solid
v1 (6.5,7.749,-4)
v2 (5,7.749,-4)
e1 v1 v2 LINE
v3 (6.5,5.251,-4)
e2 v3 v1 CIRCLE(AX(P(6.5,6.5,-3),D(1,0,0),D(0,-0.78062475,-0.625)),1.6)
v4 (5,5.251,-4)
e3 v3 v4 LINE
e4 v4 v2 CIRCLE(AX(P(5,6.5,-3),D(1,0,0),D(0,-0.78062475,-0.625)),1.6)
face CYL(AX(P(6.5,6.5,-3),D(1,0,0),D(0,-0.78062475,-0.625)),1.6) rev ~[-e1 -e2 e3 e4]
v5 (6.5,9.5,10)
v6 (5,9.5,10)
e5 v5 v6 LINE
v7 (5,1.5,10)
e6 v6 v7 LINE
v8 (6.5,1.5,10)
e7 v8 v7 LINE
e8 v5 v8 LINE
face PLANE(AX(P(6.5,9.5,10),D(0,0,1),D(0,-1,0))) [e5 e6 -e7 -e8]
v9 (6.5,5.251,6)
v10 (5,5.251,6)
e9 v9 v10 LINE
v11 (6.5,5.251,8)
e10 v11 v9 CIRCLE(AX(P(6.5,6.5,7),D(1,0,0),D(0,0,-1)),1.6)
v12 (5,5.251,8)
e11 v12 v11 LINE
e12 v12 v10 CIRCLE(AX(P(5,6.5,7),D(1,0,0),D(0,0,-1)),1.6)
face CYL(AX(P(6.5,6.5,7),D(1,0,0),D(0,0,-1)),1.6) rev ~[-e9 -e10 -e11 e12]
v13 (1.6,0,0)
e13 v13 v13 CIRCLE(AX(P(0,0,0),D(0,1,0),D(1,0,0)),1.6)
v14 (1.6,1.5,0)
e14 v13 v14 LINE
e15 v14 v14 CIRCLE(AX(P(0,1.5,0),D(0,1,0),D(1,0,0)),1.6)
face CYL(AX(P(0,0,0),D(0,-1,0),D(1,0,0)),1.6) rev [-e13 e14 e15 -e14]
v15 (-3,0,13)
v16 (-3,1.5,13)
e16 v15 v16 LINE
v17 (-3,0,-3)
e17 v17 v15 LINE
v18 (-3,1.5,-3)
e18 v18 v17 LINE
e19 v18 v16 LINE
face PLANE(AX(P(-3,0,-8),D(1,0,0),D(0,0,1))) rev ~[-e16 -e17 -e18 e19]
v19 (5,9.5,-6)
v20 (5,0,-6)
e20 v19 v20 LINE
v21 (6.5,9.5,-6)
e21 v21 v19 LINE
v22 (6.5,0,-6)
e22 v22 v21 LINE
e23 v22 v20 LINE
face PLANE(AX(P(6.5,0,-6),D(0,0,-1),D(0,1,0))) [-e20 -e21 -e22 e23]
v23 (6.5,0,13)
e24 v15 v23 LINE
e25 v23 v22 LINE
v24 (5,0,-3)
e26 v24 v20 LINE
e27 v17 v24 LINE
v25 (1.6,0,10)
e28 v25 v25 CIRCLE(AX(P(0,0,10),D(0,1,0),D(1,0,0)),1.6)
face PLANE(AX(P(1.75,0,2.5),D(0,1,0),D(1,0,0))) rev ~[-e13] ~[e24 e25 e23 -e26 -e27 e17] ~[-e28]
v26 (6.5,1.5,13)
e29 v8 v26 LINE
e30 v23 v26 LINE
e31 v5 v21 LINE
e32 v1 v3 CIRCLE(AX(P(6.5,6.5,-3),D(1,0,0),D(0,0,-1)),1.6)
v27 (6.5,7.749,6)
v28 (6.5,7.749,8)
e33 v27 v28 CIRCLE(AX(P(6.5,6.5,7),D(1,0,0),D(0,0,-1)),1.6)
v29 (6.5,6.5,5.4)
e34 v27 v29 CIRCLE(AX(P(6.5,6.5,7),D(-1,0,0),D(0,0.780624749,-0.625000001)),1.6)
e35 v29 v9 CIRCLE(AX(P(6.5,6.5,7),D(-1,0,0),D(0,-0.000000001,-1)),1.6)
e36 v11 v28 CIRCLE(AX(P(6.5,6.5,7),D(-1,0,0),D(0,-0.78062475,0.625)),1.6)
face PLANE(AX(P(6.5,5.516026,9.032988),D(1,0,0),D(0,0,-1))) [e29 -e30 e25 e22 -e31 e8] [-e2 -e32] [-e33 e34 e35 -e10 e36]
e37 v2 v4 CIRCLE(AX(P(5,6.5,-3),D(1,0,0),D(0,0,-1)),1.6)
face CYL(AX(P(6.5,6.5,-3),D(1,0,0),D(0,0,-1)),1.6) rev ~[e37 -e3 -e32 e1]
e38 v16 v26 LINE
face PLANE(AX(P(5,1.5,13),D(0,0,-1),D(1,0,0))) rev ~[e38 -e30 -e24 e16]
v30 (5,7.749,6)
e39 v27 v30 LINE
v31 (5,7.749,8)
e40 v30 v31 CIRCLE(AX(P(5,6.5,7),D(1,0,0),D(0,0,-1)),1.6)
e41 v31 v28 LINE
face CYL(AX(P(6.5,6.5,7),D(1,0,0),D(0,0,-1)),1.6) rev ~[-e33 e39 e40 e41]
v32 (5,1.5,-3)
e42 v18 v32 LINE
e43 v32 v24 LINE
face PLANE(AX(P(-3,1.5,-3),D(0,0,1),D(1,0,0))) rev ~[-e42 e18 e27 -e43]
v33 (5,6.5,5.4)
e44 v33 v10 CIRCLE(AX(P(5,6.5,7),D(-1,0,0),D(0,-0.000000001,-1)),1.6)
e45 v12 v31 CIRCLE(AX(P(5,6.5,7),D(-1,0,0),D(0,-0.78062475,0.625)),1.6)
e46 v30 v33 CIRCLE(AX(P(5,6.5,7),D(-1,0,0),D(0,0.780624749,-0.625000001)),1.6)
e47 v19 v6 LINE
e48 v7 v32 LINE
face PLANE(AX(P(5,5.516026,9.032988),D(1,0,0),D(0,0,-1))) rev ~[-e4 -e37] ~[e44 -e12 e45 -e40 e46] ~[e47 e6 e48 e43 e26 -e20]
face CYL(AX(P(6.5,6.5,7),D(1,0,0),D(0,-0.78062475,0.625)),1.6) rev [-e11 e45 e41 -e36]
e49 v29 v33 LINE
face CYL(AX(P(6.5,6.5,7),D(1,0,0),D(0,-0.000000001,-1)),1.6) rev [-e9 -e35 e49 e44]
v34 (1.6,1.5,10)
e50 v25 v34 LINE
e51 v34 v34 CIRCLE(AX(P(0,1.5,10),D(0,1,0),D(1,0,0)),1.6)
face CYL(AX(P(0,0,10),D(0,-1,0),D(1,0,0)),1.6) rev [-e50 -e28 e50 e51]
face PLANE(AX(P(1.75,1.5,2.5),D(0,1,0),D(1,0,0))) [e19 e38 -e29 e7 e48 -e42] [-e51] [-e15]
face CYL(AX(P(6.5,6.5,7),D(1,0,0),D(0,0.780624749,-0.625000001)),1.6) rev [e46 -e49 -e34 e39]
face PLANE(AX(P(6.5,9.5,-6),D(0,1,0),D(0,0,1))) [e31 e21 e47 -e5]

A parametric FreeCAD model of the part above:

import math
import FreeCAD as App
import Part
import Sketcher
Q = App.Units.Quantity

doc = App.newDocument("Part")
body = doc.addObject("PartDesign::Body", "Body")

sketch1 = body.newObject("Sketcher::SketchObject", "Sketch")
sketch1.AttachmentSupport = (doc.getObject("XZ_Plane"), [""])
sketch1.MapMode = "FlatFace"
sketch1.addGeometry([
    Part.LineSegment(App.Vector(-3, -8, 0), App.Vector(-3, 13, 0)),
    Part.LineSegment(App.Vector(-3, 13, 0), App.Vector(6.5, 13, 0)),
    Part.LineSegment(App.Vector(6.5, 13, 0), App.Vector(6.5, -8, 0)),
    Part.LineSegment(App.Vector(6.5, -8, 0), App.Vector(-3, -8, 0)),
    Part.Circle(App.Vector(0, 10, 0), App.Vector(0, 0, 1), 1.6),
    Part.Circle(App.Vector(0, 0, 0), App.Vector(0, 0, 1), 1.6),
], False)
sketch1.addConstraint([
    Sketcher.Constraint("Coincident", 0, 2, 1, 1),
    Sketcher.Constraint("Coincident", 1, 2, 2, 1),
    Sketcher.Constraint("Coincident", 2, 2, 3, 1),
    Sketcher.Constraint("Coincident", 3, 2, 0, 1),
    Sketcher.Constraint("Vertical", 0),
    Sketcher.Constraint("Horizontal", 1),
    Sketcher.Constraint("Vertical", 2),
    Sketcher.Constraint("Horizontal", 3),
    Sketcher.Constraint("Coincident", 5, 3, -1, 1),
    Sketcher.Constraint("Equal", 4, 5),
    Sketcher.Constraint("PointOnObject", 4, 3, -2),
    Sketcher.Constraint("Diameter", 4, Q("3.2 mm")),
    Sketcher.Constraint("DistanceY", 0, 1, 0, 2, Q("21 mm")),
    Sketcher.Constraint("DistanceX", 1, 1, 1, 2, Q("9.5 mm")),
    Sketcher.Constraint("DistanceY", -1, 1, 4, 3, Q("10 mm")),
    Sketcher.Constraint("DistanceX", 0, 2, -1, 1, Q("3 mm")),
    Sketcher.Constraint("DistanceY", -1, 1, 0, 2, Q("13 mm")),
])
pad1 = body.newObject("PartDesign::Pad", "Pad")
pad1.Profile = sketch1
pad1.Length = 1.5
pad1.Reversed = True

sketch2 = body.newObject("Sketcher::SketchObject", "Sketch001")
sketch2.AttachmentSupport = (doc.getObject("XZ_Plane"), [""])
sketch2.MapMode = "FlatFace"
sketch2.AttachmentOffset = App.Placement(App.Vector(0, 0, -1.5), App.Rotation())
sketch2.addGeometry([
    Part.LineSegment(App.Vector(5, -8, 0), App.Vector(5, 13, 0)),
    Part.LineSegment(App.Vector(5, 13, 0), App.Vector(6.5, 13, 0)),
    Part.LineSegment(App.Vector(6.5, 13, 0), App.Vector(6.5, -8, 0)),
    Part.LineSegment(App.Vector(6.5, -8, 0), App.Vector(5, -8, 0)),
], False)
sketch2.addConstraint([
    Sketcher.Constraint("Coincident", 0, 2, 1, 1),
    Sketcher.Constraint("Coincident", 1, 2, 2, 1),
    Sketcher.Constraint("Coincident", 2, 2, 3, 1),
    Sketcher.Constraint("Coincident", 3, 2, 0, 1),
    Sketcher.Constraint("Vertical", 0),
    Sketcher.Constraint("Horizontal", 1),
    Sketcher.Constraint("Vertical", 2),
    Sketcher.Constraint("Horizontal", 3),
    Sketcher.Constraint("DistanceY", 0, 1, 0, 2, Q("21 mm")),
    Sketcher.Constraint("DistanceX", 1, 1, 1, 2, Q("1.5 mm")),
    Sketcher.Constraint("DistanceX", -1, 1, 0, 2, Q("5 mm")),
    Sketcher.Constraint("DistanceY", -1, 1, 0, 2, Q("13 mm")),
])
pad2 = body.newObject("PartDesign::Pad", "Pad001")
pad2.Profile = sketch2
pad2.Length = 8
pad2.Reversed = True

sketch3 = body.newObject("Sketcher::SketchObject", "Sketch002")
sketch3.AttachmentSupport = (doc.getObject("YZ_Plane"), [""])
sketch3.MapMode = "FlatFace"
sketch3.AttachmentOffset = App.Placement(App.Vector(0, 0, 5), App.Rotation())
sketch3.addGeometry([
    Part.Circle(App.Vector(6.5, -5, 0), App.Vector(0, 0, 1), 1.6),
    Part.Circle(App.Vector(6.5, 5, 0), App.Vector(0, 0, 1), 1.6),
], False)
sketch3.addConstraint([
    Sketcher.Constraint("Equal", 0, 1),
    Sketcher.Constraint("Symmetric", 0, 3, 1, 3, -1),
    Sketcher.Constraint("Diameter", 0, Q("3.2 mm")),
    Sketcher.Constraint("DistanceY", 0, 3, -1, 1, Q("5 mm")),
    Sketcher.Constraint("DistanceX", -1, 1, 0, 3, Q("6.5 mm")),
])
pocket1 = body.newObject("PartDesign::Pocket", "Pocket")
pocket1.Profile = sketch3
pocket1.Length = 8
pocket1.Reversed = True

sketch4 = body.newObject("Sketcher::SketchObject", "Sketch003")
sketch4.AttachmentSupport = (doc.getObject("YZ_Plane"), [""])
sketch4.MapMode = "FlatFace"
sketch4.AttachmentOffset = App.Placement(App.Vector(0, 0, 5), App.Rotation())
sketch4.addGeometry([
    Part.LineSegment(App.Vector(10, 8, 0), App.Vector(2, 8, 0)),
    Part.LineSegment(App.Vector(2, 8, 0), App.Vector(2, 13, 0)),
    Part.LineSegment(App.Vector(2, 13, 0), App.Vector(10, 13, 0)),
    Part.LineSegment(App.Vector(10, 13, 0), App.Vector(10, 8, 0)),
], False)
sketch4.addConstraint([
    Sketcher.Constraint("Coincident", 0, 2, 1, 1),
    Sketcher.Constraint("Coincident", 1, 2, 2, 1),
    Sketcher.Constraint("Coincident", 2, 2, 3, 1),
    Sketcher.Constraint("Coincident", 3, 2, 0, 1),
    Sketcher.Constraint("Horizontal", 0),
    Sketcher.Constraint("Vertical", 1),
    Sketcher.Constraint("Horizontal", 2),
    Sketcher.Constraint("Vertical", 3),
    Sketcher.Constraint("DistanceX", 0, 2, 0, 1, Q("8 mm")),
    Sketcher.Constraint("DistanceY", 1, 1, 1, 2, Q("5 mm")),
    Sketcher.Constraint("DistanceY", -1, 1, 0, 2, Q("8 mm")),
    Sketcher.Constraint("DistanceX", -1, 1, 0, 2, Q("1.5 mm")),
])
pocket2 = body.newObject("PartDesign::Pocket", "Pocket001")
pocket2.Profile = sketch4
pocket2.Length = 8
pocket2.Reversed = True

sketch5 = body.newObject("Sketcher::SketchObject", "Sketch004")
sketch5.AttachmentSupport = (doc.getObject("XZ_Plane"), [""])
sketch5.MapMode = "FlatFace"
sketch5.AttachmentOffset = App.Placement(App.Vector(0, 0, -1.5), App.Rotation())
sketch5.addGeometry([
    Part.LineSegment(App.Vector(-3, -8, 0), App.Vector(-3, -3, 0)),
    Part.LineSegment(App.Vector(-3, -3, 0), App.Vector(5, -3, 0)),
    Part.LineSegment(App.Vector(5, -3, 0), App.Vector(5, -8, 0)),
    Part.LineSegment(App.Vector(5, -8, 0), App.Vector(-3, -8, 0)),
], False)
sketch5.addConstraint([
    Sketcher.Constraint("Coincident", 0, 2, 1, 1),
    Sketcher.Constraint("Coincident", 1, 2, 2, 1),
    Sketcher.Constraint("Coincident", 2, 2, 3, 1),
    Sketcher.Constraint("Coincident", 3, 2, 0, 1),
    Sketcher.Constraint("Vertical", 0),
    Sketcher.Constraint("Horizontal", 1),
    Sketcher.Constraint("Vertical", 2),
    Sketcher.Constraint("Horizontal", 3),
    Sketcher.Constraint("DistanceX", 1, 1, 1, 2, Q("8 mm")),
    Sketcher.Constraint("DistanceY", 0, 1, 0, 2, Q("5 mm")),
    Sketcher.Constraint("DistanceX", 0, 2, -1, 1, Q("3 mm")),
    Sketcher.Constraint("DistanceY", 0, 2, -1, 1, Q("3 mm")),
])
pocket3 = body.newObject("PartDesign::Pocket", "Pocket002")
pocket3.Profile = sketch5
pocket3.Length = 8
pocket3.Reversed = True

sketch6 = body.newObject("Sketcher::SketchObject", "Sketch005")
sketch6.AttachmentSupport = (doc.getObject("YZ_Plane"), [""])
sketch6.MapMode = "FlatFace"
sketch6.AttachmentOffset = App.Placement(App.Vector(0, 0, 6.5), App.Rotation())
sketch6.addGeometry([
    Part.Circle(App.Vector(6.5, 7, 0), App.Vector(0, 0, 1), 1.6),
    Part.Circle(App.Vector(6.5, -3, 0), App.Vector(0, 0, 1), 1.6),
    Part.LineSegment(App.Vector(9.5, -6, 0), App.Vector(0, -6, 0)),
    Part.LineSegment(App.Vector(0, -6, 0), App.Vector(0, -8, 0)),
    Part.LineSegment(App.Vector(0, -8, 0), App.Vector(9.5, -8, 0)),
    Part.LineSegment(App.Vector(9.5, -8, 0), App.Vector(9.5, -6, 0)),
], False)
sketch6.addConstraint([
    Sketcher.Constraint("Coincident", 2, 2, 3, 1),
    Sketcher.Constraint("Coincident", 3, 2, 4, 1),
    Sketcher.Constraint("Coincident", 4, 2, 5, 1),
    Sketcher.Constraint("Coincident", 5, 2, 2, 1),
    Sketcher.Constraint("Horizontal", 2),
    Sketcher.Constraint("Vertical", 3),
    Sketcher.Constraint("Horizontal", 4),
    Sketcher.Constraint("Vertical", 5),
    Sketcher.Constraint("Equal", 0, 1),
    Sketcher.Constraint("PointOnObject", 2, 2, -2),
    Sketcher.Constraint("Vertical", 0, 3, 1, 3),
    Sketcher.Constraint("Diameter", 0, Q("3.2 mm")),
    Sketcher.Constraint("DistanceY", 3, 2, 3, 1, Q("2 mm")),
    Sketcher.Constraint("DistanceX", 2, 2, 2, 1, Q("9.5 mm")),
    Sketcher.Constraint("DistanceY", -1, 1, 0, 3, Q("7 mm")),
    Sketcher.Constraint("DistanceY", 1, 3, -1, 1, Q("3 mm")),
    Sketcher.Constraint("DistanceY", 2, 2, -1, 1, Q("6 mm")),
    Sketcher.Constraint("DistanceX", 1, 3, 4, 2, Q("3 mm")),
])
pocket4 = body.newObject("PartDesign::Pocket", "Pocket003")
pocket4.Profile = sketch6
pocket4.Length = 1.5

sketch7 = body.newObject("Sketcher::SketchObject", "Sketch006")
sketch7.AttachmentSupport = (doc.getObject("YZ_Plane"), [""])
sketch7.MapMode = "FlatFace"
sketch7.AttachmentOffset = App.Placement(App.Vector(0, 0, 6.5), App.Rotation())
sketch7.addGeometry([
    Part.LineSegment(App.Vector(9.5, 10, 0), App.Vector(1.5, 10, 0)),
    Part.LineSegment(App.Vector(1.5, 10, 0), App.Vector(1.5, 13, 0)),
    Part.LineSegment(App.Vector(1.5, 13, 0), App.Vector(0, 13, 0)),
    Part.LineSegment(App.Vector(0, 13, 0), App.Vector(0, -6, 0)),
    Part.LineSegment(App.Vector(0, -6, 0), App.Vector(9.5, -6, 0)),
    Part.LineSegment(App.Vector(9.5, -6, 0), App.Vector(9.5, 10, 0)),
    Part.ArcOfCircle(Part.Circle(App.Vector(6.5, 7, 0), App.Vector(0, 0, 1), 1.6), math.radians(39), math.radians(141)),
    Part.ArcOfCircle(Part.Circle(App.Vector(6.5, 7, 0), App.Vector(0, 0, 1), 1.6), math.radians(-39), math.radians(39)),
    Part.ArcOfCircle(Part.Circle(App.Vector(6.5, 7, 0), App.Vector(0, 0, 1), 1.6), math.radians(-90), math.radians(-39)),
    Part.ArcOfCircle(Part.Circle(App.Vector(6.5, 7, 0), App.Vector(0, 0, 1), 1.6), math.radians(-141), math.radians(-90)),
    Part.ArcOfCircle(Part.Circle(App.Vector(6.5, 7, 0), App.Vector(0, 0, 1), 1.6), math.radians(141), math.radians(219)),
    Part.ArcOfCircle(Part.Circle(App.Vector(6.5, -3, 0), App.Vector(0, 0, 1), 1.6), math.radians(-39), math.radians(219)),
    Part.ArcOfCircle(Part.Circle(App.Vector(6.5, -3, 0), App.Vector(0, 0, 1), 1.6), math.radians(-141), math.radians(-39)),
], False)
sketch7.addConstraint([
    Sketcher.Constraint("Coincident", 0, 2, 1, 1),
    Sketcher.Constraint("Coincident", 1, 2, 2, 1),
    Sketcher.Constraint("Coincident", 2, 2, 3, 1),
    Sketcher.Constraint("Coincident", 3, 2, 4, 1),
    Sketcher.Constraint("Coincident", 4, 2, 5, 1),
    Sketcher.Constraint("Coincident", 5, 2, 0, 1),
    Sketcher.Constraint("Tangent", 6, 1, 7, 2),
    Sketcher.Constraint("Tangent", 7, 1, 8, 2),
    Sketcher.Constraint("Tangent", 8, 1, 9, 2),
    Sketcher.Constraint("Tangent", 9, 1, 10, 2),
    Sketcher.Constraint("Tangent", 10, 1, 6, 2),
    Sketcher.Constraint("Tangent", 11, 1, 12, 2),
    Sketcher.Constraint("Coincident", 12, 1, 11, 2),
    Sketcher.Constraint("Horizontal", 0),
    Sketcher.Constraint("Vertical", 1),
    Sketcher.Constraint("Horizontal", 2),
    Sketcher.Constraint("Vertical", 3),
    Sketcher.Constraint("Horizontal", 4),
    Sketcher.Constraint("Vertical", 5),
    Sketcher.Constraint("Coincident", 8, 3, 6, 3),
    Sketcher.Constraint("Equal", 10, 11),
    Sketcher.Constraint("PointOnObject", 2, 2, -2),
    Sketcher.Constraint("Horizontal", 7, 1, 9, 1),
    Sketcher.Constraint("Horizontal", 6, 1, 10, 1),
    Sketcher.Constraint("Horizontal", 11, 1, 12, 1),
    Sketcher.Constraint("Vertical", 10, 3, 11, 3),
    Sketcher.Constraint("Vertical", 6, 1, 7, 1),
    Sketcher.Constraint("Vertical", 12, 3, 8, 1),
    Sketcher.Constraint("Vertical", 7, 1, 11, 1),
    Sketcher.Constraint("Radius", 6, Q("1.6 mm")),
    Sketcher.Constraint("DistanceX", 0, 2, 0, 1, Q("8 mm")),
    Sketcher.Constraint("DistanceY", 1, 1, 1, 2, Q("3 mm")),
    Sketcher.Constraint("DistanceY", 3, 2, 3, 1, Q("19 mm")),
    Sketcher.Constraint("DistanceX", 2, 2, 2, 1, Q("1.5 mm")),
    Sketcher.Constraint("DistanceY", -1, 1, 6, 3, Q("7 mm")),
    Sketcher.Constraint("DistanceY", 11, 3, -1, 1, Q("3 mm")),
    Sketcher.Constraint("DistanceY", -1, 1, 0, 2, Q("10 mm")),
    Sketcher.Constraint("DistanceY", -1, 1, 6, 1, Q("8 mm")),
    Sketcher.Constraint("DistanceX", 0, 2, 8, 3, Q("5 mm")),
])
pad3 = body.newObject("PartDesign::Pad", "Pad002")
pad3.Profile = sketch7
pad3.Length = 1.5
pad3.Reversed = True

doc.recompute()
